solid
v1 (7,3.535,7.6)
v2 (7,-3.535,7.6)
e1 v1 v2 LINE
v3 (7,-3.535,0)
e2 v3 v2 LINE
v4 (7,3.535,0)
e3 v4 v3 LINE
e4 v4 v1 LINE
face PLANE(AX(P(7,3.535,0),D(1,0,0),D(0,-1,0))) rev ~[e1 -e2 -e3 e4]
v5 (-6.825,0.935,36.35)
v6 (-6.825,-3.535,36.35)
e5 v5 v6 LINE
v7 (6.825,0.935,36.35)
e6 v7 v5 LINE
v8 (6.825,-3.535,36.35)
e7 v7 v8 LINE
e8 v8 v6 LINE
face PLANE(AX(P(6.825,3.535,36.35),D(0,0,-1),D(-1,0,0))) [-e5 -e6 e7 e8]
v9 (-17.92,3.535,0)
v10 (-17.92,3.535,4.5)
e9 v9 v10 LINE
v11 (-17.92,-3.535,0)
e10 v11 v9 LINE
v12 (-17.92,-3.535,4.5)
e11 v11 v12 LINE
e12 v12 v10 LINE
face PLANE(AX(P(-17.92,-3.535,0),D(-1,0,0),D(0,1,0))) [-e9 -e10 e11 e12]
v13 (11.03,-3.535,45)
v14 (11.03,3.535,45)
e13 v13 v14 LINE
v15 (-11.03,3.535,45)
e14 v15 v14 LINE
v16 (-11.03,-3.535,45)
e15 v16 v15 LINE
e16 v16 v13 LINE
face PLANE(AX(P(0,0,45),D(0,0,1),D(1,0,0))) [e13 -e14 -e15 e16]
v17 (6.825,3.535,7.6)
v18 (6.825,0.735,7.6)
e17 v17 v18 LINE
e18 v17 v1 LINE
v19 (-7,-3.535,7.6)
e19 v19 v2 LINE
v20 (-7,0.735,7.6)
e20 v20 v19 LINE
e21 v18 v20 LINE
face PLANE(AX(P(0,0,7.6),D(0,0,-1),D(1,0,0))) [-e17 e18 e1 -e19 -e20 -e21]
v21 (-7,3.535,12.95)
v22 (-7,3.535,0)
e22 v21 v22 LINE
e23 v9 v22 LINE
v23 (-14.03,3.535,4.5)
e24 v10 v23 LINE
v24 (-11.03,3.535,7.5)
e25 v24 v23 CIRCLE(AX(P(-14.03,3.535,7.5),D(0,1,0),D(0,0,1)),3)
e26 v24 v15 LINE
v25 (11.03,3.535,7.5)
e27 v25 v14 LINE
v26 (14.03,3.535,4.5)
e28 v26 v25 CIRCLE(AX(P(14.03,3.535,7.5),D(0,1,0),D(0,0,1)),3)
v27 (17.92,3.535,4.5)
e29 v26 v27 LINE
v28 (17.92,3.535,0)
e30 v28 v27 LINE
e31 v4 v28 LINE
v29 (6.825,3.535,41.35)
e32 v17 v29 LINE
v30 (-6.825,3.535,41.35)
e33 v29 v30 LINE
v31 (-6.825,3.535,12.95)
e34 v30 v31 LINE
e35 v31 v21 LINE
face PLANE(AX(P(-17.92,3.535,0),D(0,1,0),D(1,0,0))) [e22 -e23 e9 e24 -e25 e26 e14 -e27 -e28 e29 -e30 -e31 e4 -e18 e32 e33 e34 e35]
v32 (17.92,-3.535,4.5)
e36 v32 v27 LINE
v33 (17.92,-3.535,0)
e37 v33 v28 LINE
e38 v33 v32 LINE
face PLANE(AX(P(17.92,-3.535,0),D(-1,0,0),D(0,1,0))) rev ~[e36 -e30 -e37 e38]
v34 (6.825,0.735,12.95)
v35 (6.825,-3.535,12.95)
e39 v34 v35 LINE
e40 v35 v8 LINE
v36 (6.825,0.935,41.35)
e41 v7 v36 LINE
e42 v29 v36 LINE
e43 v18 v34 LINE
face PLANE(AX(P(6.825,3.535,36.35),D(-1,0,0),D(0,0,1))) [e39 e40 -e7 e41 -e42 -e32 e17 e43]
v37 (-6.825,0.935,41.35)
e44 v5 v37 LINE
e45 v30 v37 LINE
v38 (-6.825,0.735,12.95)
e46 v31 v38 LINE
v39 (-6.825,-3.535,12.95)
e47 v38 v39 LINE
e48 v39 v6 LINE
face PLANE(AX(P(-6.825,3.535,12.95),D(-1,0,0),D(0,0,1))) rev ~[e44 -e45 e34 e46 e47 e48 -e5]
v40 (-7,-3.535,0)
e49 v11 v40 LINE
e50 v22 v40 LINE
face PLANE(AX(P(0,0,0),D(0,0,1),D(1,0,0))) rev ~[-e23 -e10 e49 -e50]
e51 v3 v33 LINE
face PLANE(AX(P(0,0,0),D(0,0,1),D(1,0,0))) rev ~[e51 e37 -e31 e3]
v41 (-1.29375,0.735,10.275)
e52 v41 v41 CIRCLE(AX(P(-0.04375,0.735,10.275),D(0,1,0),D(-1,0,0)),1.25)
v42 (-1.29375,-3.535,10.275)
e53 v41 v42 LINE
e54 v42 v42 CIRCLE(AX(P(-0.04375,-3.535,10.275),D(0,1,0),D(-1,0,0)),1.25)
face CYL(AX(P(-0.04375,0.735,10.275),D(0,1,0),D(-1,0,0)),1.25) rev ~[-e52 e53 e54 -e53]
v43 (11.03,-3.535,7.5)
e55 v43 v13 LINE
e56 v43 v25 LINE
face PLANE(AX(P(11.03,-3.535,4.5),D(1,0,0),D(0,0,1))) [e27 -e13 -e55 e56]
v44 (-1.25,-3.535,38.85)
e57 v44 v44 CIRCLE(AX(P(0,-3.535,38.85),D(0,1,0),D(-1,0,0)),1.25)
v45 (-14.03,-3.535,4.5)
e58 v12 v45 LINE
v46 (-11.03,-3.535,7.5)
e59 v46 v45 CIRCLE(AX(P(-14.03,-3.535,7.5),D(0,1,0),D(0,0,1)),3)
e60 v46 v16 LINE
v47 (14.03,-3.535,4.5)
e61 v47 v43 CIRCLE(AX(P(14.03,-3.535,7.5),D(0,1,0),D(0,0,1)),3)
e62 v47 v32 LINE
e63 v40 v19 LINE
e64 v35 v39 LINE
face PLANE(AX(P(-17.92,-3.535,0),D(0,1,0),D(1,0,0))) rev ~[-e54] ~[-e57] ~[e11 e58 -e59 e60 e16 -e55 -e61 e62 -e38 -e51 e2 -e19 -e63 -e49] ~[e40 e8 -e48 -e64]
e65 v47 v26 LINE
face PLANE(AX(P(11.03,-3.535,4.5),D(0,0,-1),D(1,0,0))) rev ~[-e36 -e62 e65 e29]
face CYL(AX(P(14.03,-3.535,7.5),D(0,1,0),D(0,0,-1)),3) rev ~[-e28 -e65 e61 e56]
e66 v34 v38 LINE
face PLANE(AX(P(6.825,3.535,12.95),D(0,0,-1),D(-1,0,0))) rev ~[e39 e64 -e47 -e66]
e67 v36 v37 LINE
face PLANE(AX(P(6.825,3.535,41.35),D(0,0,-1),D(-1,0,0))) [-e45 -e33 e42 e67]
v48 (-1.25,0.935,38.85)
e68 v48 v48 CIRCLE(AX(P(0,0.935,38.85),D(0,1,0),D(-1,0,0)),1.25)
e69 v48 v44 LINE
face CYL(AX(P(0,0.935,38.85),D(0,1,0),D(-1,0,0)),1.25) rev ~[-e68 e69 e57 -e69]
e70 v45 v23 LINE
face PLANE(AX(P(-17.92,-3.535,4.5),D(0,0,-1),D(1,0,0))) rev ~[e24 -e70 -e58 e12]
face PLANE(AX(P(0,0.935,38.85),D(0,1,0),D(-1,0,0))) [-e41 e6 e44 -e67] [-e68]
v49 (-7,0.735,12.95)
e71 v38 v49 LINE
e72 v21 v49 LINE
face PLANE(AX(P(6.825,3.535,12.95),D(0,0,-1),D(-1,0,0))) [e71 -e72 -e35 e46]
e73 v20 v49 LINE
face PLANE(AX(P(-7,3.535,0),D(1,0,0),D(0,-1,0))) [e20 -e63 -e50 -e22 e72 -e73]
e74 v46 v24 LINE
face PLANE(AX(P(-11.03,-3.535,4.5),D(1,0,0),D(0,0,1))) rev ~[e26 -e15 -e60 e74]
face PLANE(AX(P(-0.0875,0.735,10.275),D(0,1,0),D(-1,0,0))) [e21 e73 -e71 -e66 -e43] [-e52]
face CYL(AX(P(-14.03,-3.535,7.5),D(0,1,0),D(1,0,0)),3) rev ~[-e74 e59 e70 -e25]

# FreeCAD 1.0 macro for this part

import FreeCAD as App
import Part
import Sketcher
from FreeCAD import Vector


def edges_at(feature, points):
    """Names of the edges that pass closest to the given points."""
    edges = feature.Shape.Edges
    near = lambda p: min(range(len(edges)), key=lambda i: edges[i].distToShape(Part.Vertex(*p))[0])
    return sorted({f"Edge{near(p) + 1}" for p in points})


def add_polygon(sketch, points):
    """Adds a closed chain of lines whose ends are joined by coincident constraints."""
    first, n = sketch.GeometryCount, len(points)
    for a, b in zip(points, points[1:] + points[:1]):
        sketch.addGeometry(Part.LineSegment(App.Vector(*a, 0), App.Vector(*b, 0)), False)
    for i in range(n):
        sketch.addConstraint(Sketcher.Constraint("Coincident", first + i, 2, first + (i + 1) % n, 1))

doc = App.newDocument("Part")
body = doc.addObject("PartDesign::Body", "Body")

sketch1 = body.newObject("Sketcher::SketchObject", "Sketch")
sketch1.AttachmentSupport = (doc.getObject("XY_Plane"), [""])
sketch1.MapMode = "FlatFace"
add_polygon(sketch1, [(-18, 4), (-18, -4), (18, -4), (18, 4)])
sketch1.addConstraint([
    Sketcher.Constraint("Vertical", 0),
    Sketcher.Constraint("Horizontal", 1),
    Sketcher.Constraint("Vertical", 2),
    Sketcher.Constraint("Horizontal", 3),
    Sketcher.Constraint("Symmetric", 0, 2, 2, 2, -1, 1),
    Sketcher.Constraint("DistanceX", 1, 1, 1, 2, 35.84),
    Sketcher.Constraint("DistanceY", 0, 2, 0, 1, 7.07),
])
pad1 = body.newObject("PartDesign::Pad", "Pad")
pad1.Profile = sketch1
pad1.Length = 45

sketch2 = body.newObject("Sketcher::SketchObject", "Sketch001")
sketch2.AttachmentSupport = (doc.getObject("XZ_Plane"), [""])
sketch2.MapMode = "FlatFace"
sketch2.AttachmentOffset = App.Placement(Vector(0, 0, 3.535), App.Rotation())
add_polygon(sketch2, [(11, 45), (11, 4), (18, 4), (18, 45)])
sketch2.addConstraint([
    Sketcher.Constraint("Vertical", 0),
    Sketcher.Constraint("Horizontal", 1),
    Sketcher.Constraint("Vertical", 2),
    Sketcher.Constraint("Horizontal", 3),
    Sketcher.Constraint("DistanceY", 0, 2, 0, 1, 40.5),
    Sketcher.Constraint("DistanceY", -1, 1, 2, 2, 45.0),
    Sketcher.Constraint("DistanceX", 1, 1, 1, 2, 6.89),
    Sketcher.Constraint("DistanceX", -1, 1, 0, 2, 11.03),
])
pocket1 = body.newObject("PartDesign::Pocket", "Pocket")
pocket1.Profile = sketch2
pocket1.Type = "ThroughAll"

sketch3 = body.newObject("Sketcher::SketchObject", "Sketch002")
sketch3.AttachmentSupport = (doc.getObject("XZ_Plane"), [""])
sketch3.MapMode = "FlatFace"
sketch3.AttachmentOffset = App.Placement(Vector(0, 0, 3.535), App.Rotation())
add_polygon(sketch3, [(-18, 45), (-18, 4), (-11, 4), (-11, 45)])
sketch3.addConstraint([
    Sketcher.Constraint("Vertical", 0),
    Sketcher.Constraint("Horizontal", 1),
    Sketcher.Constraint("Vertical", 2),
    Sketcher.Constraint("Horizontal", 3),
    Sketcher.Constraint("DistanceY", 0, 2, 0, 1, 40.5),
    Sketcher.Constraint("DistanceY", -1, 1, 2, 2, 45.0),
    Sketcher.Constraint("DistanceX", 1, 1, 1, 2, 6.89),
    Sketcher.Constraint("DistanceX", 0, 2, -1, 1, 17.92),
])
pocket2 = body.newObject("PartDesign::Pocket", "Pocket001")
pocket2.Profile = sketch3
pocket2.Type = "ThroughAll"

sketch4 = body.newObject("Sketcher::SketchObject", "Sketch003")
sketch4.AttachmentSupport = (doc.getObject("XY_Plane"), [""])
sketch4.MapMode = "FlatFace"
add_polygon(sketch4, [(-7, -4), (-7, 4), (7, 4), (7, -4)])
sketch4.addConstraint([
    Sketcher.Constraint("Vertical", 0),
    Sketcher.Constraint("Horizontal", 1),
    Sketcher.Constraint("Vertical", 2),
    Sketcher.Constraint("Horizontal", 3),
    Sketcher.Constraint("Symmetric", 0, 2, 2, 2, -1, 1),
    Sketcher.Constraint("DistanceX", 1, 1, 1, 2, 14.0),
    Sketcher.Constraint("DistanceY", 0, 1, 0, 2, 7.07),
])
pocket3 = body.newObject("PartDesign::Pocket", "Pocket002")
pocket3.Profile = sketch4
pocket3.Length = 7.6
pocket3.Reversed = True

sketch5 = body.newObject("Sketcher::SketchObject", "Sketch004")
sketch5.AttachmentSupport = (doc.getObject("XZ_Plane"), [""])
sketch5.MapMode = "FlatFace"
sketch5.AttachmentOffset = App.Placement(Vector(0, 0, -3.535), App.Rotation())
add_polygon(sketch5, [(7, 36), (7, 13), (-7, 13), (-7, 36)])
sketch5.addConstraint([
    Sketcher.Constraint("Vertical", 0),
    Sketcher.Constraint("Horizontal", 1),
    Sketcher.Constraint("Vertical", 2),
    Sketcher.Constraint("Horizontal", 3),
    Sketcher.Constraint("DistanceY", 0, 2, 0, 1, 23.4),
    Sketcher.Constraint("DistanceX", 1, 2, 1, 1, 13.65),
    Sketcher.Constraint("DistanceY", -1, 1, 0, 2, 12.95),
    Sketcher.Constraint("DistanceX", -1, 1, 0, 2, 6.825),
])
pocket4 = body.newObject("PartDesign::Pocket", "Pocket003")
pocket4.Profile = sketch5
pocket4.Type = "ThroughAll"
pocket4.Reversed = True

sketch6 = body.newObject("Sketcher::SketchObject", "Sketch005")
sketch6.AttachmentSupport = (doc.getObject("XZ_Plane"), [""])
sketch6.MapMode = "FlatFace"
sketch6.AttachmentOffset = App.Placement(Vector(0, 0, -3.535), App.Rotation())
add_polygon(sketch6, [(7, 41), (7, 36), (-7, 36), (-7, 41)])
sketch6.addConstraint([
    Sketcher.Constraint("Vertical", 0),
    Sketcher.Constraint("Horizontal", 1),
    Sketcher.Constraint("Vertical", 2),
    Sketcher.Constraint("Horizontal", 3),
    Sketcher.Constraint("DistanceY", 0, 2, 0, 1, 5.0),
    Sketcher.Constraint("DistanceX", 1, 2, 1, 1, 13.65),
    Sketcher.Constraint("DistanceY", -1, 1, 0, 2, 36.35),
    Sketcher.Constraint("DistanceX", -1, 1, 0, 2, 6.825),
])
pocket5 = body.newObject("PartDesign::Pocket", "Pocket004")
pocket5.Profile = sketch6
pocket5.Length = 2.6
pocket5.Reversed = True

sketch7 = body.newObject("Sketcher::SketchObject", "Sketch006")
sketch7.AttachmentSupport = (doc.getObject("XZ_Plane"), [""])
sketch7.MapMode = "FlatFace"
sketch7.AttachmentOffset = App.Placement(Vector(0, 0, -3.535), App.Rotation())
add_polygon(sketch7, [(7, 13), (7, 8), (-7, 8), (-7, 13)])
sketch7.addConstraint([
    Sketcher.Constraint("Vertical", 0),
    Sketcher.Constraint("Horizontal", 1),
    Sketcher.Constraint("Vertical", 2),
    Sketcher.Constraint("Horizontal", 3),
    Sketcher.Constraint("DistanceX", 1, 2, -1, 1, 7.0),
    Sketcher.Constraint("DistanceY", 0, 2, 0, 1, 5.35),
    Sketcher.Constraint("DistanceY", -1, 1, 0, 2, 7.6),
    Sketcher.Constraint("DistanceX", 1, 2, 1, 1, 13.825),
])
pocket6 = body.newObject("PartDesign::Pocket", "Pocket005")
pocket6.Profile = sketch7
pocket6.Length = 2.8
pocket6.Reversed = True
doc.recompute()

fillet = body.newObject("PartDesign::Fillet", "Fillet")
fillet.Base = (pocket6, edges_at(pocket6, [(-11.03, 0, 4.5), (11.03, 0, 4.5)]))
fillet.Radius = 3

sketch8 = body.newObject("Sketcher::SketchObject", "Sketch007")
sketch8.AttachmentSupport = (doc.getObject("XZ_Plane"), [""])
sketch8.MapMode = "FlatFace"
sketch8.AttachmentOffset = App.Placement(Vector(0, 0, -0.735), App.Rotation())
sketch8.addGeometry(Part.Circle(Vector(0, 10.3, 0), Vector(0, 0, 1), 1.2), False)
sketch8.addConstraint([
    Sketcher.Constraint("Diameter", 0, 2.5),
    Sketcher.Constraint("DistanceY", -1, 1, 0, 3, 10.275),
    Sketcher.Constraint("DistanceX", 0, 3, -1, 1, 0.04375),
])
pocket7 = body.newObject("PartDesign::Pocket", "Pocket006")
pocket7.Profile = sketch8
pocket7.Type = "ThroughAll"
pocket7.Reversed = True

sketch9 = body.newObject("Sketcher::SketchObject", "Sketch008")
sketch9.AttachmentSupport = (doc.getObject("XZ_Plane"), [""])
sketch9.MapMode = "FlatFace"
sketch9.AttachmentOffset = App.Placement(Vector(0, 0, -0.935), App.Rotation())
sketch9.addGeometry(Part.Circle(Vector(0, 38.9, 0), Vector(0, 0, 1), 1.2), False)
sketch9.addConstraint([
    Sketcher.Constraint("PointOnObject", 0, 3, -2),
    Sketcher.Constraint("Diameter", 0, 2.5),
    Sketcher.Constraint("DistanceY", -1, 1, 0, 3, 38.85),
])
pocket8 = body.newObject("PartDesign::Pocket", "Pocket007")
pocket8.Profile = sketch9
pocket8.Type = "ThroughAll"
pocket8.Reversed = True

doc.recompute()
